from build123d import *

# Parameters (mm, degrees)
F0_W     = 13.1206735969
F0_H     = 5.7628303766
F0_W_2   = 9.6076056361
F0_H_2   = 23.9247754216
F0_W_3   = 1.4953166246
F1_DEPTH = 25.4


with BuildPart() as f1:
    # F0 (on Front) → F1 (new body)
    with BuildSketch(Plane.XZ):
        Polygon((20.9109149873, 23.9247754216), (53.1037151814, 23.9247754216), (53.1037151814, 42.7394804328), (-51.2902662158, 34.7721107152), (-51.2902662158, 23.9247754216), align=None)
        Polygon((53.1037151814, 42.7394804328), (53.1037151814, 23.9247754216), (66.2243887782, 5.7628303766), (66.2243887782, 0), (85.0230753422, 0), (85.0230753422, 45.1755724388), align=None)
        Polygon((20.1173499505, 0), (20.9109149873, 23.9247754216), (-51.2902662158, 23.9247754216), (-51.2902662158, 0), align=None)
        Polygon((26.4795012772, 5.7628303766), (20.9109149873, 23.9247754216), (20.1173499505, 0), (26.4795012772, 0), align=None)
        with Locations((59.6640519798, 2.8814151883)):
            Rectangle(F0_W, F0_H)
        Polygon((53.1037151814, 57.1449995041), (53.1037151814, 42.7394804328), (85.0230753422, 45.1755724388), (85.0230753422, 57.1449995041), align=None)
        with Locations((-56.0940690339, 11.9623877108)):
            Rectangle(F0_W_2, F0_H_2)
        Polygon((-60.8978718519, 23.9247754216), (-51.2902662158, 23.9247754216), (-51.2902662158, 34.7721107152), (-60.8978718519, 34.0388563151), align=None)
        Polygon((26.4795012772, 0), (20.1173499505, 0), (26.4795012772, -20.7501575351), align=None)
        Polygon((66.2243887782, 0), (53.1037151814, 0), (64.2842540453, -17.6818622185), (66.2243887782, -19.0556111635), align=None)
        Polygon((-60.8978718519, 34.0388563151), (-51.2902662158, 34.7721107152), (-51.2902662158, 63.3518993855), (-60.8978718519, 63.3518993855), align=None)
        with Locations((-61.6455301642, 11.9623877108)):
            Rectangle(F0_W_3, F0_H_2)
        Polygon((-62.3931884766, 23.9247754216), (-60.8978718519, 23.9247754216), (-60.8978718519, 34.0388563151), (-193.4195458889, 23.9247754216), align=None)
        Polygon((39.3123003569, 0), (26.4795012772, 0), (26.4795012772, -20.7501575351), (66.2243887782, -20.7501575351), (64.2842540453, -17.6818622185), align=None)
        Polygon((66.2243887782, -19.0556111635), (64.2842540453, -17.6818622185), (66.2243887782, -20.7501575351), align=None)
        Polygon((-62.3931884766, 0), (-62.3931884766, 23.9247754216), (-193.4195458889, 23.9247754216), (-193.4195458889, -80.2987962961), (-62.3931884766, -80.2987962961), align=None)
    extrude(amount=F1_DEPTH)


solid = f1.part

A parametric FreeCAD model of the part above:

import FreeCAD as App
import Part
import Sketcher
from FreeCAD import Vector
Q = App.Units.Quantity

doc = App.newDocument("Part")
body = doc.addObject("PartDesign::Body", "Body")

sketch1 = body.newObject("Sketcher::SketchObject", "Sketch")
sketch1.AttachmentSupport = (doc.getObject("XZ_Plane"), [""])
sketch1.MapMode = "FlatFace"
sketch1.addGeometry(Part.LineSegment(Vector(26, -21, 0), Vector(66, -21, 0)), False)
sketch1.addGeometry(Part.LineSegment(Vector(66, -21, 0), Vector(66, 0, 0)), False)
sketch1.addGeometry(Part.LineSegment(Vector(66, 0, 0), Vector(85, 0, 0)), False)
sketch1.addGeometry(Part.LineSegment(Vector(85, 0, 0), Vector(85, 57, 0)), False)
sketch1.addGeometry(Part.LineSegment(Vector(85, 57, 0), Vector(53, 57, 0)), False)
sketch1.addGeometry(Part.LineSegment(Vector(53, 57, 0), Vector(53, 43, 0)), False)
sketch1.addGeometry(Part.LineSegment(Vector(53, 43, 0), Vector(-51, 35, 0)), False)
sketch1.addGeometry(Part.LineSegment(Vector(-51, 35, 0), Vector(-51, 63, 0)), False)
sketch1.addGeometry(Part.LineSegment(Vector(-51, 63, 0), Vector(-61, 63, 0)), False)
sketch1.addGeometry(Part.LineSegment(Vector(-61, 63, 0), Vector(-61, 34, 0)), False)
sketch1.addGeometry(Part.LineSegment(Vector(-61, 34, 0), Vector(-193, 24, 0)), False)
sketch1.addGeometry(Part.LineSegment(Vector(-193, 24, 0), Vector(-193, -80, 0)), False)
sketch1.addGeometry(Part.LineSegment(Vector(-193, -80, 0), Vector(-62, -80, 0)), False)
sketch1.addGeometry(Part.LineSegment(Vector(-62, -80, 0), Vector(-62, 0, 0)), False)
sketch1.addGeometry(Part.LineSegment(Vector(-62, 0, 0), Vector(20, 0, 0)), False)
sketch1.addGeometry(Part.LineSegment(Vector(20, 0, 0), Vector(26, -21, 0)), False)
sketch1.addGeometry(Part.LineSegment(Vector(53, 0, 0), Vector(64, -18, 0)), False)
sketch1.addGeometry(Part.LineSegment(Vector(64, -18, 0), Vector(39, 0, 0)), False)
sketch1.addGeometry(Part.LineSegment(Vector(39, 0, 0), Vector(26, 0, 0)), False)
sketch1.addGeometry(Part.LineSegment(Vector(26, 0, 0), Vector(26, 6, 0)), False)
sketch1.addGeometry(Part.LineSegment(Vector(26, 6, 0), Vector(21, 24, 0)), False)
sketch1.addGeometry(Part.LineSegment(Vector(21, 24, 0), Vector(53, 24, 0)), False)
sketch1.addGeometry(Part.LineSegment(Vector(53, 24, 0), Vector(66, 6, 0)), False)
sketch1.addGeometry(Part.LineSegment(Vector(66, 6, 0), Vector(53, 6, 0)), False)
sketch1.addGeometry(Part.LineSegment(Vector(53, 6, 0), Vector(53, 0, 0)), False)
sketch1.addConstraint(Sketcher.Constraint("Coincident", 0, 2, 1, 1))
sketch1.addConstraint(Sketcher.Constraint("Coincident", 1, 2, 2, 1))
sketch1.addConstraint(Sketcher.Constraint("Coincident", 2, 2, 3, 1))
sketch1.addConstraint(Sketcher.Constraint("Coincident", 3, 2, 4, 1))
sketch1.addConstraint(Sketcher.Constraint("Coincident", 4, 2, 5, 1))
sketch1.addConstraint(Sketcher.Constraint("Coincident", 5, 2, 6, 1))
sketch1.addConstraint(Sketcher.Constraint("Coincident", 6, 2, 7, 1))
sketch1.addConstraint(Sketcher.Constraint("Coincident", 7, 2, 8, 1))
sketch1.addConstraint(Sketcher.Constraint("Coincident", 8, 2, 9, 1))
sketch1.addConstraint(Sketcher.Constraint("Coincident", 9, 2, 10, 1))
sketch1.addConstraint(Sketcher.Constraint("Coincident", 10, 2, 11, 1))
sketch1.addConstraint(Sketcher.Constraint("Coincident", 11, 2, 12, 1))
sketch1.addConstraint(Sketcher.Constraint("Coincident", 12, 2, 13, 1))
sketch1.addConstraint(Sketcher.Constraint("Coincident", 13, 2, 14, 1))
sketch1.addConstraint(Sketcher.Constraint("Coincident", 14, 2, 15, 1))
sketch1.addConstraint(Sketcher.Constraint("Coincident", 15, 2, 0, 1))
sketch1.addConstraint(Sketcher.Constraint("Coincident", 16, 2, 17, 1))
sketch1.addConstraint(Sketcher.Constraint("Coincident", 17, 2, 18, 1))
sketch1.addConstraint(Sketcher.Constraint("Coincident", 18, 2, 19, 1))
sketch1.addConstraint(Sketcher.Constraint("Coincident", 19, 2, 20, 1))
sketch1.addConstraint(Sketcher.Constraint("Coincident", 20, 2, 21, 1))
sketch1.addConstraint(Sketcher.Constraint("Coincident", 21, 2, 22, 1))
sketch1.addConstraint(Sketcher.Constraint("Coincident", 22, 2, 23, 1))
sketch1.addConstraint(Sketcher.Constraint("Coincident", 23, 2, 24, 1))
sketch1.addConstraint(Sketcher.Constraint("Coincident", 24, 2, 16, 1))
sketch1.addConstraint(Sketcher.Constraint("Horizontal", 0))
sketch1.addConstraint(Sketcher.Constraint("Vertical", 1))
sketch1.addConstraint(Sketcher.Constraint("Horizontal", 2))
sketch1.addConstraint(Sketcher.Constraint("Vertical", 3))
sketch1.addConstraint(Sketcher.Constraint("Horizontal", 4))
sketch1.addConstraint(Sketcher.Constraint("Vertical", 5))
sketch1.addConstraint(Sketcher.Constraint("Vertical", 7))
sketch1.addConstraint(Sketcher.Constraint("Horizontal", 8))
sketch1.addConstraint(Sketcher.Constraint("Vertical", 9))
sketch1.addConstraint(Sketcher.Constraint("Vertical", 11))
sketch1.addConstraint(Sketcher.Constraint("Horizontal", 12))
sketch1.addConstraint(Sketcher.Constraint("Vertical", 13))
sketch1.addConstraint(Sketcher.Constraint("Horizontal", 14))
sketch1.addConstraint(Sketcher.Constraint("Horizontal", 18))
sketch1.addConstraint(Sketcher.Constraint("Vertical", 19))
sketch1.addConstraint(Sketcher.Constraint("Horizontal", 21))
sketch1.addConstraint(Sketcher.Constraint("Horizontal", 23))
sketch1.addConstraint(Sketcher.Constraint("Vertical", 24))
sketch1.addConstraint(Sketcher.Constraint("PointOnObject", 1, 2, -1))
sketch1.addConstraint(Sketcher.Constraint("PointOnObject", 13, 2, -1))
sketch1.addConstraint(Sketcher.Constraint("PointOnObject", 17, 2, -1))
sketch1.addConstraint(Sketcher.Constraint("PointOnObject", 24, 2, -1))
sketch1.addConstraint(Sketcher.Constraint("Parallel", 6, 10))
sketch1.addConstraint(Sketcher.Constraint("Parallel", 15, 20))
sketch1.addConstraint(Sketcher.Constraint("Horizontal", 10, 2, 20, 2))
sketch1.addConstraint(Sketcher.Constraint("Horizontal", 19, 2, 22, 2))
sketch1.addConstraint(Sketcher.Constraint("Vertical", 15, 2, 18, 2))
sketch1.addConstraint(Sketcher.Constraint("Vertical", 5, 2, 21, 2))
sketch1.addConstraint(Sketcher.Constraint("Vertical", 1, 2, 22, 2))
sketch1.addConstraint(Sketcher.Constraint("Vertical", 21, 2, 23, 2))
sketch1.addConstraint(Sketcher.Constraint("DistanceX", 18, 2, 18, 1, 12.832799))
sketch1.addConstraint(Sketcher.Constraint("DistanceX", 21, 1, 21, 2, 32.1928))
sketch1.addConstraint(Sketcher.Constraint("DistanceY", 3, 1, 3, 2, 57.145))
sketch1.addConstraint(Sketcher.Constraint("DistanceX", -1, 1, 15, 2, Q("1.0425001 in")))
sketch1.addConstraint(Sketcher.Constraint("DistanceX", 4, 2, 4, 1, 31.91936))
sketch1.addConstraint(Sketcher.Constraint("DistanceX", 14, 1, 14, 2, 82.510538))
sketch1.addConstraint(Sketcher.Constraint("DistanceY", 5, 2, 5, 1, 14.405519))
sketch1.addConstraint(Sketcher.Constraint("DistanceY", 7, 1, 7, 2, 28.579789))
sketch1.addConstraint(Sketcher.Constraint("DistanceY", 11, 2, 11, 1, 104.223572))
sketch1.addConstraint(Sketcher.Constraint("DistanceY", 19, 1, 19, 2, 5.76283))
sketch1.addConstraint(Sketcher.Constraint("DistanceY", -1, 1, 7, 2, 63.351899))
sketch1.addConstraint(Sketcher.Constraint("Distance", 16, 20.920151))
sketch1.addConstraint(Sketcher.Constraint("Distance", 17, 30.598149))
sketch1.addConstraint(Sketcher.Constraint("DistanceX", 0, 1, 0, 2, 39.744888))
sketch1.addConstraint(Sketcher.Constraint("DistanceX", 2, 1, 2, 2, 18.798687))
sketch1.addConstraint(Sketcher.Constraint("DistanceX", 8, 2, 8, 1, 9.607606))
sketch1.addConstraint(Sketcher.Constraint("DistanceX", 12, 1, 12, 2, 131.026357))
sketch1.addConstraint(Sketcher.Constraint("DistanceY", 1, 1, 1, 2, 20.750158))
sketch1.addConstraint(Sketcher.Constraint("DistanceY", 9, 2, 9, 1, 29.313043))
sketch1.addConstraint(Sketcher.Constraint("DistanceY", 13, 1, 13, 2, 80.298796))
pad1 = body.newObject("PartDesign::Pad", "Pad")
pad1.Profile = sketch1
pad1.Length = Q("1 in")

doc.recompute()
